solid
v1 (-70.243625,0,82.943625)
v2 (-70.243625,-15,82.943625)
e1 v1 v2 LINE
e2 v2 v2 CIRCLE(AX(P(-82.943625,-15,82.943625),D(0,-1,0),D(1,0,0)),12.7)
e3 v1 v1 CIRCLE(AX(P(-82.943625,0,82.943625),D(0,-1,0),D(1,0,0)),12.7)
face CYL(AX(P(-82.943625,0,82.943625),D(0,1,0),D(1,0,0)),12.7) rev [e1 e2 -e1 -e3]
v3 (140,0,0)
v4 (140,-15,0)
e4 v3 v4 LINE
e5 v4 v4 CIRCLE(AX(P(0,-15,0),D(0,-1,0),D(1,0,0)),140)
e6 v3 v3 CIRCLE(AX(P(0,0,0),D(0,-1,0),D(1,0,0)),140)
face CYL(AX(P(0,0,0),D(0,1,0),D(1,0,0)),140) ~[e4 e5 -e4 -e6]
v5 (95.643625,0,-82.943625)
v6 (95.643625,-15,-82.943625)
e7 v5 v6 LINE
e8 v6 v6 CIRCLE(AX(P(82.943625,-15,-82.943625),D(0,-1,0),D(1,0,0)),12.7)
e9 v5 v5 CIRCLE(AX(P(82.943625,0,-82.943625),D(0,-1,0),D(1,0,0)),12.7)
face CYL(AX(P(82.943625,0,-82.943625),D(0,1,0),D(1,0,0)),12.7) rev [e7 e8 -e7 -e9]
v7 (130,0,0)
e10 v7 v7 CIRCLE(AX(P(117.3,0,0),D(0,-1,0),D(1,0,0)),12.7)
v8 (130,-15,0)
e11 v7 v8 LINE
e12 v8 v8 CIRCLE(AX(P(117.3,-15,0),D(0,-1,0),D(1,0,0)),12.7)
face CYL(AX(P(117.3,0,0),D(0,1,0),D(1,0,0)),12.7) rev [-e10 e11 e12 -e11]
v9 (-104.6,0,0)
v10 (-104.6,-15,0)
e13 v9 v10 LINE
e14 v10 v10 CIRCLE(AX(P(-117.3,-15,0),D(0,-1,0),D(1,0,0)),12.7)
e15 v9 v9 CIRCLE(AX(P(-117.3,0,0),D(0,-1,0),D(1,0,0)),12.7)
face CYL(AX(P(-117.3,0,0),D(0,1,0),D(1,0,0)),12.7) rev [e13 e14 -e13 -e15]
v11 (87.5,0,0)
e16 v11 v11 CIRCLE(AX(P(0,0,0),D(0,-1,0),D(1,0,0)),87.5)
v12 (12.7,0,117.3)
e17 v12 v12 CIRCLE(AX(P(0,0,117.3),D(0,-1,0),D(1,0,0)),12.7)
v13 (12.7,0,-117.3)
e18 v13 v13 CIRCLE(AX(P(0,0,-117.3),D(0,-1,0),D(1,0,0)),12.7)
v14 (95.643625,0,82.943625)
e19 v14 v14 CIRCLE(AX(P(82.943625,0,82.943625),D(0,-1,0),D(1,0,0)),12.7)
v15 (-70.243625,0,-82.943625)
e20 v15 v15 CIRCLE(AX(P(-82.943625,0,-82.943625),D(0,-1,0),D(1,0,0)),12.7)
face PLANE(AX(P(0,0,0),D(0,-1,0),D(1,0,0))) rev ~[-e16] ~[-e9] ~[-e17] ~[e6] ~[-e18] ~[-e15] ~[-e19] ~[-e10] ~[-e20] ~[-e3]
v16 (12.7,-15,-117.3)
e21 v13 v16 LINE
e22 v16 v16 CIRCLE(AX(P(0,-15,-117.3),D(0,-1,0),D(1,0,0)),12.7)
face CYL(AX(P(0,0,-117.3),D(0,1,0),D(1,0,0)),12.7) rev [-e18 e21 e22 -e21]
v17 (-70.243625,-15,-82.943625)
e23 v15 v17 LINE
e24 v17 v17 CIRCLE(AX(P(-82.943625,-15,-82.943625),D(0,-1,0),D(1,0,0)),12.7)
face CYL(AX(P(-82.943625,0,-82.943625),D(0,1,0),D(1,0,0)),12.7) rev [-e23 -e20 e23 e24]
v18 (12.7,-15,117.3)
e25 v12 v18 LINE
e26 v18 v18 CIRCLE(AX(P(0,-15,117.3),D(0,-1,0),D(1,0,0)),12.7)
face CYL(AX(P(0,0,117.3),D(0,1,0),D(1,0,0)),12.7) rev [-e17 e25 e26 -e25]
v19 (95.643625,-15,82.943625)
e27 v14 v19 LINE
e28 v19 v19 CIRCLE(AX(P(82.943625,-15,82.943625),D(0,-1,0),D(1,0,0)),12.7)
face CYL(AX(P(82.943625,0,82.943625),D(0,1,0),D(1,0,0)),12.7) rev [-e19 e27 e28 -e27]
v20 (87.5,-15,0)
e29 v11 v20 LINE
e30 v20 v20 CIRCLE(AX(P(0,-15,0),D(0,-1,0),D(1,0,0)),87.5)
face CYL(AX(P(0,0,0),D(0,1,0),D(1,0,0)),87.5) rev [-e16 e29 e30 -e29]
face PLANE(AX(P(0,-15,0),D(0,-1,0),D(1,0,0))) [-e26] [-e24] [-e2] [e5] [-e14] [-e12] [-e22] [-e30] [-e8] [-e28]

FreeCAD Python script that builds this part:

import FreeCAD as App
import Part
import Sketcher
from FreeCAD import Vector
Q = App.Units.Quantity

doc = App.newDocument("Part")
body = doc.addObject("PartDesign::Body", "Body")

# Sketch on XZ plane
sketch1 = doc.addObject("Sketcher::SketchObject", "Sketch")
body.addObject(sketch1)
sketch1.AttachmentSupport = (doc.XZ_Plane, [""])
sketch1.MapMode = "FlatFace"
sketch1.addGeometry(Part.Circle(Vector(0, 0, 0), Vector(0, 0, 1), 140), False)
sketch1.addGeometry(Part.Circle(Vector(-82.943625, -82.943625, 0), Vector(0, 0, 1), 12.7), False)
sketch1.addGeometry(Part.Circle(Vector(0, -117.3, 0), Vector(0, 0, 1), 12.7), False)
sketch1.addGeometry(Part.Circle(Vector(82.943625, -82.943625, 0), Vector(0, 0, 1), 12.7), False)
sketch1.addGeometry(Part.Circle(Vector(-117.3, 0, 0), Vector(0, 0, 1), 12.7), False)
sketch1.addGeometry(Part.Circle(Vector(-82.943625, 82.943625, 0), Vector(0, 0, 1), 12.7), False)
sketch1.addGeometry(Part.Circle(Vector(0, 0, 0), Vector(0, 0, 1), 87.5), False)
sketch1.addGeometry(Part.Circle(Vector(117.3, 0, 0), Vector(0, 0, 1), 12.7), False)
sketch1.addGeometry(Part.Circle(Vector(0, 117.3, 0), Vector(0, 0, 1), 12.7), False)
sketch1.addGeometry(Part.Circle(Vector(82.943625, 82.943625, 0), Vector(0, 0, 1), 12.7), False)
sketch1.addConstraint(Sketcher.Constraint("Coincident", 0, 3, -1, 1))
sketch1.addConstraint(Sketcher.Constraint("Coincident", 6, 3, -1, 1))
sketch1.addConstraint(Sketcher.Constraint("Equal", 1, 2))
sketch1.addConstraint(Sketcher.Constraint("Equal", 2, 3))
sketch1.addConstraint(Sketcher.Constraint("Equal", 3, 4))
sketch1.addConstraint(Sketcher.Constraint("Equal", 4, 5))
sketch1.addConstraint(Sketcher.Constraint("Equal", 5, 7))
sketch1.addConstraint(Sketcher.Constraint("Equal", 7, 8))
sketch1.addConstraint(Sketcher.Constraint("Equal", 8, 9))
sketch1.addConstraint(Sketcher.Constraint("Symmetric", 3, 3, 5, 3, -1, 1))
sketch1.addConstraint(Sketcher.Constraint("Symmetric", 4, 3, 7, 3, -1, 1))
sketch1.addConstraint(Sketcher.Constraint("Symmetric", 2, 3, 8, 3, -1, 1))
sketch1.addConstraint(Sketcher.Constraint("Symmetric", 1, 3, 9, 3, -1, 1))
sketch1.addConstraint(Sketcher.Constraint("Symmetric", 1, 3, 3, 3, -2))
sketch1.addConstraint(Sketcher.Constraint("PointOnObject", 2, 3, -2))
sketch1.addConstraint(Sketcher.Constraint("PointOnObject", 4, 3, -1))
sketch1.addConstraint(Sketcher.Constraint("Diameter", 0, Q("280 mm")))
sketch1.addConstraint(Sketcher.Constraint("Diameter", 6, Q("175 mm")))
sketch1.addConstraint(Sketcher.Constraint("Diameter", 1, Q("25.4 mm")))
sketch1.addConstraint(Sketcher.Constraint("DistanceY", 2, 3, -1, 1, Q("117.3 mm")))
sketch1.addConstraint(Sketcher.Constraint("DistanceX", 4, 3, -1, 1, Q("117.3 mm")))
sketch1.addConstraint(Sketcher.Constraint("DistanceX", 1, 3, 3, 3, Q("165.88725 mm")))
sketch1.addConstraint(Sketcher.Constraint("DistanceY", 1, 3, 5, 3, Q("165.88725 mm")))
pad1 = doc.addObject("PartDesign::Pad", "Pad")
body.addObject(pad1)
pad1.Profile = sketch1
pad1.Length = 15

doc.recompute()
